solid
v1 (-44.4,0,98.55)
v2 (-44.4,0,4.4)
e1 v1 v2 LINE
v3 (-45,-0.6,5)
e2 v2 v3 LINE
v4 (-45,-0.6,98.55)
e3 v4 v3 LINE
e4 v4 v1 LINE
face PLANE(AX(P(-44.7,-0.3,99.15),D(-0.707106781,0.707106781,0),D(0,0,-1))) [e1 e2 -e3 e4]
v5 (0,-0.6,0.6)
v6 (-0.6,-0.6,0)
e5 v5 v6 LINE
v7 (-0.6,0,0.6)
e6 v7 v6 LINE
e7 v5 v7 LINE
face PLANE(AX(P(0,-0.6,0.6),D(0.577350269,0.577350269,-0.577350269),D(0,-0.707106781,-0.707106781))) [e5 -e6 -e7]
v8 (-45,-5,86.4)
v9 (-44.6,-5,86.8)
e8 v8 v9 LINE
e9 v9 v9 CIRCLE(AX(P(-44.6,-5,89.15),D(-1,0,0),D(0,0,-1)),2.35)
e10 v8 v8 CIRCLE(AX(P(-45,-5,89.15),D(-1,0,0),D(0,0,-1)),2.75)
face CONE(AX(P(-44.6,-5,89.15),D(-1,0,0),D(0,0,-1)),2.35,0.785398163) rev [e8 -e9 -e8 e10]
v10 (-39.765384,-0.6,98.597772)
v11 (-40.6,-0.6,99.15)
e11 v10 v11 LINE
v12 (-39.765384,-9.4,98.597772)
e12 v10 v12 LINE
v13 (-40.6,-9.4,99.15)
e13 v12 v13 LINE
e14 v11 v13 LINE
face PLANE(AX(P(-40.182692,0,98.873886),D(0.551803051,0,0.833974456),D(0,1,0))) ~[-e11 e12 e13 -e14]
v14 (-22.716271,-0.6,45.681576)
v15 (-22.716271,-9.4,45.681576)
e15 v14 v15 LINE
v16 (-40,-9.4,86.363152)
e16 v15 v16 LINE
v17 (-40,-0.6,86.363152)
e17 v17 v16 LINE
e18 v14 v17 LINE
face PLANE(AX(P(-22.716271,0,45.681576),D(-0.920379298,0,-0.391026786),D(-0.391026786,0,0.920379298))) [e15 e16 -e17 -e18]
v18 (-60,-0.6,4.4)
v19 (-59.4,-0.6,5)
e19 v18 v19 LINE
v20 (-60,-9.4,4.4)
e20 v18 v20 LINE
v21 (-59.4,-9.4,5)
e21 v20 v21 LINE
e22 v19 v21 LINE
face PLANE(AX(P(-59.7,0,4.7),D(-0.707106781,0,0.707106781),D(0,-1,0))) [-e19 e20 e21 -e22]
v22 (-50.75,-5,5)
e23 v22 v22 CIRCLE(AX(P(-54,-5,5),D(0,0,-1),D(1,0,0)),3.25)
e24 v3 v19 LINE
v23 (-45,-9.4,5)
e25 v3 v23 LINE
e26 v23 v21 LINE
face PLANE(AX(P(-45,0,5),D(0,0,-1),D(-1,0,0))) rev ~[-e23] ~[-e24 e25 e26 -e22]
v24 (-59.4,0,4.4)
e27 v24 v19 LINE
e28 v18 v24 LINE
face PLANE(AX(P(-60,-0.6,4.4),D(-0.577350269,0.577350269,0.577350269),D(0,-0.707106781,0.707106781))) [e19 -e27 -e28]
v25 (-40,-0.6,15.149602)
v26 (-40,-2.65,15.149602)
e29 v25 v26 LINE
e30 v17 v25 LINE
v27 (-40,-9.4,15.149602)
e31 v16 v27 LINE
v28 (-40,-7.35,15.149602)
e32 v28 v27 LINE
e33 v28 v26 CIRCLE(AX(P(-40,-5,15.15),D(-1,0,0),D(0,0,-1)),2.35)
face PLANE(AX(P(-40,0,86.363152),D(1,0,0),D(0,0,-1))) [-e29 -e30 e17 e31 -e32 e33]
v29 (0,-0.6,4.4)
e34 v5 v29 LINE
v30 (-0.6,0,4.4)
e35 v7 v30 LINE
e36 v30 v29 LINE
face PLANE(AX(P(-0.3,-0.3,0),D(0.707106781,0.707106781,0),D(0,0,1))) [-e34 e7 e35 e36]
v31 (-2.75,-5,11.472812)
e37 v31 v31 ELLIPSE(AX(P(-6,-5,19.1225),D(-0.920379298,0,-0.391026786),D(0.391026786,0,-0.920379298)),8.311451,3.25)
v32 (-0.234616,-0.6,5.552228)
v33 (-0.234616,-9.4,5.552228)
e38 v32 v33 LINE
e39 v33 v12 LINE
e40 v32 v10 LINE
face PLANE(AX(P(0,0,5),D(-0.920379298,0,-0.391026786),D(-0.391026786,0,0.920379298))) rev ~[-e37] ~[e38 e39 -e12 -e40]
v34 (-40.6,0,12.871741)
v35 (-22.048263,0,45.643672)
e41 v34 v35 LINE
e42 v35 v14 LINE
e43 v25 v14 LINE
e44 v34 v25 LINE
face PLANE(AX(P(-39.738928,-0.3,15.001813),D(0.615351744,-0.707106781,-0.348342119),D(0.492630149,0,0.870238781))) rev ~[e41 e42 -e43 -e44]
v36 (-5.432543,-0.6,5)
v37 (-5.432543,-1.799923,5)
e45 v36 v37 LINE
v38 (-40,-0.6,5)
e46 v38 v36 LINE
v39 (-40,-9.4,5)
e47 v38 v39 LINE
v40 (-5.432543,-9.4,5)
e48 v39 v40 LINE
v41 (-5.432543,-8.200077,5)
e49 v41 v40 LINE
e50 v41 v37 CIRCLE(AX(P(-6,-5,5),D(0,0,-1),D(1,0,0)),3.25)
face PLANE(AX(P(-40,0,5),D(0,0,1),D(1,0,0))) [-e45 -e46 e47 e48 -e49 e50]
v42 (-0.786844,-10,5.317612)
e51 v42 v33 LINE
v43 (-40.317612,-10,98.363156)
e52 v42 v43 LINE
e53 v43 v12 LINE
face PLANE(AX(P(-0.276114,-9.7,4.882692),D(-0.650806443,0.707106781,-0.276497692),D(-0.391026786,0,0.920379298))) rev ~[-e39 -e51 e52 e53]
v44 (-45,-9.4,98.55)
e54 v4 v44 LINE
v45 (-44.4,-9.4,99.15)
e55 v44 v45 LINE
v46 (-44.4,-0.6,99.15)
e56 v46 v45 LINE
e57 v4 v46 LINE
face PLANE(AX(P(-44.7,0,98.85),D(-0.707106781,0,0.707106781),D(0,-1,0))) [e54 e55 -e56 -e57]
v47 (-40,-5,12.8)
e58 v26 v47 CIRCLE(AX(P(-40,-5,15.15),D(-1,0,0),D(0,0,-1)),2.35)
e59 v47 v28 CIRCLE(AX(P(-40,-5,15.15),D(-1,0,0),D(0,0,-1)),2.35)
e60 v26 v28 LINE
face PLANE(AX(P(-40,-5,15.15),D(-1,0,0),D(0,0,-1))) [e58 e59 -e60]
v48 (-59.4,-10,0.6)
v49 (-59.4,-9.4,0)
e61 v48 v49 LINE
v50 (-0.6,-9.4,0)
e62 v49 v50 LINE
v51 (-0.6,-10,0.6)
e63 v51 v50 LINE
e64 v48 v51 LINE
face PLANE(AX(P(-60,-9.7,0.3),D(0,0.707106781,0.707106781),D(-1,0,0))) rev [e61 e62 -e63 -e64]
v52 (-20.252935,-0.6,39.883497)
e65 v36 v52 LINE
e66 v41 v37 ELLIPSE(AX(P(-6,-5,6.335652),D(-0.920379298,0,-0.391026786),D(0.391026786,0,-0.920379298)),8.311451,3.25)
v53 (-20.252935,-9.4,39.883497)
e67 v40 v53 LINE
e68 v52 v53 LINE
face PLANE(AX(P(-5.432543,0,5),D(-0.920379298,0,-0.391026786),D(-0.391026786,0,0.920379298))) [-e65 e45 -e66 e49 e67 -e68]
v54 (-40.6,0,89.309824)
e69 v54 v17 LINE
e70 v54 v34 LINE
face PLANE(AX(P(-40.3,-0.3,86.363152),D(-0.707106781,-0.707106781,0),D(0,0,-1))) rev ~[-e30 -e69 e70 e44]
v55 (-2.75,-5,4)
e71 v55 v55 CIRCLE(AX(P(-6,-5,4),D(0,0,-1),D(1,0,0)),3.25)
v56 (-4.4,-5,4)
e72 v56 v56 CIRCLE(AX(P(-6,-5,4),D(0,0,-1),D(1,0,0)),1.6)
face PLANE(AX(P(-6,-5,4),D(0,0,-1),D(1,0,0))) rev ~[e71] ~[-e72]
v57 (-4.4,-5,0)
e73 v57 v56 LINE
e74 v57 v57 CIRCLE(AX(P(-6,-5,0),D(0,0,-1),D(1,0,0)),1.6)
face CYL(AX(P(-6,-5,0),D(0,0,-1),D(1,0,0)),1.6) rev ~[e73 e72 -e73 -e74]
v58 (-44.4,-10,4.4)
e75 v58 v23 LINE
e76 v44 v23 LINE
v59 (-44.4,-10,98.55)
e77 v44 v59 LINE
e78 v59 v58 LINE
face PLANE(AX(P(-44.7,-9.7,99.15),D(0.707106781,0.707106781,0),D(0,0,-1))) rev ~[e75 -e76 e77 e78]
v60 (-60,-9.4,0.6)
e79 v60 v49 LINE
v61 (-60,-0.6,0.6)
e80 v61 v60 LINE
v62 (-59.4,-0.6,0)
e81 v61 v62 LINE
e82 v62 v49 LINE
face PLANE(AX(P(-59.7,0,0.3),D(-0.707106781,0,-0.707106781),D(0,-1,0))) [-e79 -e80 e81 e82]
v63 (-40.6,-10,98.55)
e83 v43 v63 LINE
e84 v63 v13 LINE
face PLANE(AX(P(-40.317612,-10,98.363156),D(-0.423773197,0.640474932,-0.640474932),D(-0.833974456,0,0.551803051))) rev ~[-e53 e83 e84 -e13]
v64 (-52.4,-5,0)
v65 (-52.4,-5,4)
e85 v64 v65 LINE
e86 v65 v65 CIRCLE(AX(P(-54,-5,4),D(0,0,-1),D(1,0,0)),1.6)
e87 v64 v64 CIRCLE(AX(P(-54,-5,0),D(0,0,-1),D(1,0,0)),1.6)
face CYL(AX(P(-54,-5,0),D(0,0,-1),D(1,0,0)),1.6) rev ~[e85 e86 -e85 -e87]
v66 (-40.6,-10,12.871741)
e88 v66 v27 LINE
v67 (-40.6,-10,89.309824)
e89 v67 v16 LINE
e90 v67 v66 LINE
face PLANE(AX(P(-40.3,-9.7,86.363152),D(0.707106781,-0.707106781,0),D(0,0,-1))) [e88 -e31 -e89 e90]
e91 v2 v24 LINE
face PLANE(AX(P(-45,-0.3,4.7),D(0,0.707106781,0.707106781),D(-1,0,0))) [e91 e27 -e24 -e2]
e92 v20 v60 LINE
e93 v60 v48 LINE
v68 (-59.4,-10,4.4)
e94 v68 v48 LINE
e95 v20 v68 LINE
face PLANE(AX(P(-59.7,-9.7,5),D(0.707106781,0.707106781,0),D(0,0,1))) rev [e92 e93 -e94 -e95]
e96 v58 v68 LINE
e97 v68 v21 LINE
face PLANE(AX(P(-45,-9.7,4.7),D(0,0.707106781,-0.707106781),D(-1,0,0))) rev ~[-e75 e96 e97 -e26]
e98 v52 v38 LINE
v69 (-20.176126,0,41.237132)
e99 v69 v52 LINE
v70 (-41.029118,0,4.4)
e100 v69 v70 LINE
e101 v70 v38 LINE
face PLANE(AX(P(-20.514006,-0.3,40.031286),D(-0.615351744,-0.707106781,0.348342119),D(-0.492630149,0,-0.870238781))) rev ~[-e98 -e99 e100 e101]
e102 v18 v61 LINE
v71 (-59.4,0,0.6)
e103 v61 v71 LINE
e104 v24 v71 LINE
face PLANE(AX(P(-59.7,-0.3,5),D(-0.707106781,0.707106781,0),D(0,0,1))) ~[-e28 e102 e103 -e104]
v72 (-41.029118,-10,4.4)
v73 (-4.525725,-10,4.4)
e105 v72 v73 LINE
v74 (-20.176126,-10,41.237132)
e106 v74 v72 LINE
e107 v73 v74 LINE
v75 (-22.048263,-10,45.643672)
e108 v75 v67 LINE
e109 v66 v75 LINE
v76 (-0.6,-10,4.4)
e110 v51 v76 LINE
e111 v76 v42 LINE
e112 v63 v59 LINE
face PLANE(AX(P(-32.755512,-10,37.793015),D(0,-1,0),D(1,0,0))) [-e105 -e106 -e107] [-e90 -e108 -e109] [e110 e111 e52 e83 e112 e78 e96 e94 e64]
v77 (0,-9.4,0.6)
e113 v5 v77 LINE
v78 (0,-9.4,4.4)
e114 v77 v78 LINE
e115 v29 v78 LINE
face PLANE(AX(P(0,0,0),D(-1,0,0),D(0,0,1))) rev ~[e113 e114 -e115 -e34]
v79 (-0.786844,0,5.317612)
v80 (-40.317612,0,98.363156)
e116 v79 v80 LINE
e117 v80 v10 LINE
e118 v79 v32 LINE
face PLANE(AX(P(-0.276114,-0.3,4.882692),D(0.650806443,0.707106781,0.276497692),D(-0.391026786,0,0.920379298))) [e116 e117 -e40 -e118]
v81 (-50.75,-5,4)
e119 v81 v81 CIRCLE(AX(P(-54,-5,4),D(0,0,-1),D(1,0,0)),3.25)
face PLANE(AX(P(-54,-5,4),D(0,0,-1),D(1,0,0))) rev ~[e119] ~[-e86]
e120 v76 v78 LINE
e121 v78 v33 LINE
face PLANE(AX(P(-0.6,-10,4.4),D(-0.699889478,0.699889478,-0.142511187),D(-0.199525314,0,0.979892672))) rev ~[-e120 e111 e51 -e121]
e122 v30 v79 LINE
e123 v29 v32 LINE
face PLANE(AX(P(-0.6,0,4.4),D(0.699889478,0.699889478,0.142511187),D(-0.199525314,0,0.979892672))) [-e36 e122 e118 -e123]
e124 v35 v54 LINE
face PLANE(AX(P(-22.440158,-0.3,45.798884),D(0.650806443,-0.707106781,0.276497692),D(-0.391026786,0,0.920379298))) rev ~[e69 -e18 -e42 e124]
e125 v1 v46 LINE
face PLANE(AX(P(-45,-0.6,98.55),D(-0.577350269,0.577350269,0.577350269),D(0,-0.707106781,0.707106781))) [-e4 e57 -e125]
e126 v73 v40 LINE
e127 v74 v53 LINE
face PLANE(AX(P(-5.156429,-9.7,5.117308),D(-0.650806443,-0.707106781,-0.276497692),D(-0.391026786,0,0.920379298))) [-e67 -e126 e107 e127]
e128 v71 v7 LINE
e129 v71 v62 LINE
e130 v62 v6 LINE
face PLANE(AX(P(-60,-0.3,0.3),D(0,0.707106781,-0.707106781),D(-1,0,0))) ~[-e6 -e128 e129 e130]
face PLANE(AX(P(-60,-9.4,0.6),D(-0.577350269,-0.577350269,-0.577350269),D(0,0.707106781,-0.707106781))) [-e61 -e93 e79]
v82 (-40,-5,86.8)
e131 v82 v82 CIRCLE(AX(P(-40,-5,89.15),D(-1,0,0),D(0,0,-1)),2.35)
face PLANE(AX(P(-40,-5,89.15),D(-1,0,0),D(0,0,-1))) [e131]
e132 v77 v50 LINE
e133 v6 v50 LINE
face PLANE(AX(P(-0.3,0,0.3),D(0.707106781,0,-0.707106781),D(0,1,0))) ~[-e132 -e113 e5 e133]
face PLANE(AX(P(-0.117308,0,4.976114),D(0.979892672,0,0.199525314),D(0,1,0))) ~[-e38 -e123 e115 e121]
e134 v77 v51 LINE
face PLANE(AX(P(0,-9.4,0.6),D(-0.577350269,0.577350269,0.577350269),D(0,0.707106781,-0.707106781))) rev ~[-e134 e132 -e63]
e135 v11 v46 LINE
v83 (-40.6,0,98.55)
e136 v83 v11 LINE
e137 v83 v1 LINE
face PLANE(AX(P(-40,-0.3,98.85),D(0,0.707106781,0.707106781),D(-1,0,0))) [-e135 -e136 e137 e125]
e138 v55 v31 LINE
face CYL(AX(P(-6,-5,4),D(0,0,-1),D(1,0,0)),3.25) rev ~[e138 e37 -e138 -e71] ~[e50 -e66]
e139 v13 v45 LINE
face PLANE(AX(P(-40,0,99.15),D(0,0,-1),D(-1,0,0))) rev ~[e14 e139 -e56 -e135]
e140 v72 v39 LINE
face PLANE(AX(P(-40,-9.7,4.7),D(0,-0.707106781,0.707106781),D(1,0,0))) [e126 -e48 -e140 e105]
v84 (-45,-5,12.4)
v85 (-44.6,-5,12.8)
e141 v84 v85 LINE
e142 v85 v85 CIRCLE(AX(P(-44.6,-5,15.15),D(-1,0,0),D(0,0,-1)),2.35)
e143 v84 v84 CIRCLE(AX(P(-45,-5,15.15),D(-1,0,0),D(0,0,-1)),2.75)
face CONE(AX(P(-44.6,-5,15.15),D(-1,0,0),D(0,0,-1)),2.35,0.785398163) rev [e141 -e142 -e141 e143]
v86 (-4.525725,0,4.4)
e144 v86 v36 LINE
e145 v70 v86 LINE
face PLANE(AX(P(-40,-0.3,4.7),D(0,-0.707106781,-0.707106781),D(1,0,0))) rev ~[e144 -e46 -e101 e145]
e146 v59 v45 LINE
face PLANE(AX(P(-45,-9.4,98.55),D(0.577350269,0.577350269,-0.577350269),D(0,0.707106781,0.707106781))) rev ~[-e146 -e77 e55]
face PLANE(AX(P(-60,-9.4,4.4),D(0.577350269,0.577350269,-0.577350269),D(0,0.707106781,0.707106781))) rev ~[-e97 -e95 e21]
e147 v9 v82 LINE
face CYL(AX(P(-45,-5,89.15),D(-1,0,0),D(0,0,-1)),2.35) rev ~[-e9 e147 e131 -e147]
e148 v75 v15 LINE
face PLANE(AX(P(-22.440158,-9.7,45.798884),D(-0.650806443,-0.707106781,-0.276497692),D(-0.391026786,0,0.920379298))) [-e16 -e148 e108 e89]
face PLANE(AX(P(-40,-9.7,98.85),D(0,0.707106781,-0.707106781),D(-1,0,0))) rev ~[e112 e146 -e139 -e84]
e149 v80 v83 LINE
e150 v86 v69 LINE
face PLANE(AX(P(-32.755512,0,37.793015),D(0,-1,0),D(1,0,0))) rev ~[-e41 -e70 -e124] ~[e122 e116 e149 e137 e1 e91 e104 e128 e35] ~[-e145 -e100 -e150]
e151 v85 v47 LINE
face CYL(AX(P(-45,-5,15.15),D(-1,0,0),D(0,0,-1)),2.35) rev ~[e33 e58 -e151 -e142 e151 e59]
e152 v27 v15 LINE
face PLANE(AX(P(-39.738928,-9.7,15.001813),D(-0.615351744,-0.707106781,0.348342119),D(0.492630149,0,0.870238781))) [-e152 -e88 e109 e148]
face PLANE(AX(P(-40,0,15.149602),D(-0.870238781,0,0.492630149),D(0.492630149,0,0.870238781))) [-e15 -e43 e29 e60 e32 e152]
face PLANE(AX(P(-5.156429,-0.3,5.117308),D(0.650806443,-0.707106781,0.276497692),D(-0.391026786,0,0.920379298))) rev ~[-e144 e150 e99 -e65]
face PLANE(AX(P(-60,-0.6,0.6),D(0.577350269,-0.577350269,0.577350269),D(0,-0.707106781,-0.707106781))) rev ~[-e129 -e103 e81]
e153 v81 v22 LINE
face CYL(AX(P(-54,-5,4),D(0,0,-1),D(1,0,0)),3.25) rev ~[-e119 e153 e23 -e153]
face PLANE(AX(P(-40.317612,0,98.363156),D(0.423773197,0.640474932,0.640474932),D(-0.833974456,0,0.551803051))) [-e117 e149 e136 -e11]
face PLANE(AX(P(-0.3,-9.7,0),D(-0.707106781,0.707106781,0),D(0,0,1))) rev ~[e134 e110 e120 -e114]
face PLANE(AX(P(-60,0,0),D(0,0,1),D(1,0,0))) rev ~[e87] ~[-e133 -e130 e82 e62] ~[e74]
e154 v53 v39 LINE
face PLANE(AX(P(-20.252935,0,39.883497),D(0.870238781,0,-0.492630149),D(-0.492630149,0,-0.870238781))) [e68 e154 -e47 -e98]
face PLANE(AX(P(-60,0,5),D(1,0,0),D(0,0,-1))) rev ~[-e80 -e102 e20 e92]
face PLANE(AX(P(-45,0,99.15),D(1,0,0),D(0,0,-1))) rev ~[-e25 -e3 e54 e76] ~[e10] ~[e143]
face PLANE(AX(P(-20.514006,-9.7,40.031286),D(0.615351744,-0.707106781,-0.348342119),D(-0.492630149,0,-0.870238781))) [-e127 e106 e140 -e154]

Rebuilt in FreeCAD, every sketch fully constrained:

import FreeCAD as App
import Part
import Sketcher

V = App.Vector


def edges_at(feature, points):
    """Names of the edges that pass closest to the given points."""
    edges = feature.Shape.Edges
    near = lambda p: min(range(len(edges)), key=lambda i: edges[i].distToShape(Part.Vertex(*p))[0])
    return sorted({f"Edge{near(p) + 1}" for p in points})

doc = App.newDocument("Part")
body = doc.addObject("PartDesign::Body", "Body")

sketch1 = body.newObject("Sketcher::SketchObject", "Sketch")
sketch1.AttachmentSupport = (doc.getObject("XZ_Plane"), [""])
sketch1.MapMode = "FlatFace"
sketch1.addGeometry([
    Part.LineSegment(V(-60, 0, 0), V(0, 0, 0)),
    Part.LineSegment(V(0, 0, 0), V(0, 5, 0)),
    Part.LineSegment(V(0, 5, 0), V(-40, 99, 0)),
    Part.LineSegment(V(-40, 99, 0), V(-45, 99, 0)),
    Part.LineSegment(V(-45, 99, 0), V(-45, 5, 0)),
    Part.LineSegment(V(-45, 5, 0), V(-60, 5, 0)),
    Part.LineSegment(V(-60, 5, 0), V(-60, 0, 0)),
    Part.LineSegment(V(-5, 5, 0), V(-40, 5, 0)),
    Part.LineSegment(V(-40, 5, 0), V(-20, 40, 0)),
    Part.LineSegment(V(-20, 40, 0), V(-5, 5, 0)),
    Part.LineSegment(V(-23, 46, 0), V(-40, 15, 0)),
    Part.LineSegment(V(-40, 15, 0), V(-40, 86, 0)),
    Part.LineSegment(V(-40, 86, 0), V(-23, 46, 0)),
], False)
sketch1.addConstraint([
    Sketcher.Constraint("Coincident", 0, 2, 1, 1),
    Sketcher.Constraint("Coincident", 1, 2, 2, 1),
    Sketcher.Constraint("Coincident", 2, 2, 3, 1),
    Sketcher.Constraint("Coincident", 3, 2, 4, 1),
    Sketcher.Constraint("Coincident", 4, 2, 5, 1),
    Sketcher.Constraint("Coincident", 5, 2, 6, 1),
    Sketcher.Constraint("Coincident", 6, 2, 0, 1),
    Sketcher.Constraint("Coincident", 7, 2, 8, 1),
    Sketcher.Constraint("Coincident", 8, 2, 9, 1),
    Sketcher.Constraint("Coincident", 9, 2, 7, 1),
    Sketcher.Constraint("Coincident", 10, 2, 11, 1),
    Sketcher.Constraint("Coincident", 11, 2, 12, 1),
    Sketcher.Constraint("Coincident", 12, 2, 10, 1),
    Sketcher.Constraint("Horizontal", 0),
    Sketcher.Constraint("Vertical", 1),
    Sketcher.Constraint("Horizontal", 3),
    Sketcher.Constraint("Vertical", 4),
    Sketcher.Constraint("Horizontal", 5),
    Sketcher.Constraint("Vertical", 6),
    Sketcher.Constraint("Horizontal", 7),
    Sketcher.Constraint("Vertical", 11),
    Sketcher.Constraint("Coincident", 0, 2, -1, 1),
    Sketcher.Constraint("Parallel", 2, 9),
    Sketcher.Constraint("Parallel", 8, 10),
    Sketcher.Constraint("Parallel", 9, 12),
    Sketcher.Constraint("Horizontal", 1, 2, 4, 2),
    Sketcher.Constraint("Horizontal", 5, 2, 7, 2),
    Sketcher.Constraint("Vertical", 2, 2, 7, 2),
    Sketcher.Constraint("Vertical", 7, 2, 10, 2),
    Sketcher.Constraint("Equal", 3, 1),
    Sketcher.Constraint("DistanceX", 0, 1, 0, 2, 60.0),
    Sketcher.Constraint("DistanceX", 3, 2, 3, 1, 5.0),
    Sketcher.Constraint("DistanceX", 5, 2, 5, 1, 15.0),
    Sketcher.Constraint("DistanceY", 4, 2, 4, 1, 94.15),
    Sketcher.Constraint("DistanceY", 11, 1, 11, 2, 71.21355),
    Sketcher.Constraint("Distance", 8, 40.084972),
    Sketcher.Constraint("Distance", 9, 37.901218),
    Sketcher.Constraint("DistanceY", 8, 2, 12, 2, 5.798079),
])
pad1 = body.newObject("PartDesign::Pad", "Pad")
pad1.Profile = sketch1
pad1.Length = 10

sketch2 = body.newObject("Sketcher::SketchObject", "Sketch001")
sketch2.AttachmentSupport = (doc.getObject("YZ_Plane"), [""])
sketch2.MapMode = "FlatFace"
sketch2.AttachmentOffset = App.Placement(V(0, 0, -45), App.Rotation())
sketch2.addGeometry([
    Part.Circle(V(-5, 89.2, 0), V(0, 0, 1), 2.4),
    Part.Circle(V(-5, 15.2, 0), V(0, 0, 1), 2.4),
], False)
sketch2.addConstraint([
    Sketcher.Constraint("Equal", 0, 1),
    Sketcher.Constraint("Vertical", 0, 3, 1, 3),
    Sketcher.Constraint("Diameter", 0, 4.7),
    Sketcher.Constraint("DistanceX", 0, 3, -1, 1, 5.0),
    Sketcher.Constraint("DistanceY", 1, 3, 0, 3, 74.0),
    Sketcher.Constraint("DistanceY", -1, 1, 0, 3, 89.15),
])
pocket1 = body.newObject("PartDesign::Pocket", "Pocket")
pocket1.Profile = sketch2
pocket1.Length = 5
pocket1.Reversed = True

sketch3 = body.newObject("Sketcher::SketchObject", "Sketch002")
sketch3.AttachmentSupport = (doc.getObject("XY_Plane"), [""])
sketch3.MapMode = "FlatFace"
sketch3.addGeometry([
    Part.Circle(V(-54, -5, 0), V(0, 0, 1), 1.6),
    Part.Circle(V(-6, -5, 0), V(0, 0, 1), 1.6),
], False)
sketch3.addConstraint([
    Sketcher.Constraint("Equal", 0, 1),
    Sketcher.Constraint("Horizontal", 0, 3, 1, 3),
    Sketcher.Constraint("Diameter", 0, 3.2),
    Sketcher.Constraint("DistanceX", 0, 3, -1, 1, 54.0),
    Sketcher.Constraint("DistanceY", 0, 3, -1, 1, 5.0),
    Sketcher.Constraint("DistanceX", 1, 3, -1, 1, 6.0),
])
pocket2 = body.newObject("PartDesign::Pocket", "Pocket001")
pocket2.Profile = sketch3
pocket2.Type = "ThroughAll"
pocket2.Reversed = True

sketch4 = body.newObject("Sketcher::SketchObject", "Sketch003")
sketch4.AttachmentSupport = (doc.getObject("XY_Plane"), [""])
sketch4.MapMode = "FlatFace"
sketch4.AttachmentOffset = App.Placement(V(0, 0, 4), App.Rotation())
sketch4.addGeometry([
    Part.Circle(V(-54, -5, 0), V(0, 0, 1), 3.2),
    Part.Circle(V(-6, -5, 0), V(0, 0, 1), 3.2),
], False)
sketch4.addConstraint([
    Sketcher.Constraint("Equal", 0, 1),
    Sketcher.Constraint("Horizontal", 0, 3, 1, 3),
    Sketcher.Constraint("Diameter", 0, 6.5),
    Sketcher.Constraint("DistanceX", 0, 3, -1, 1, 54.0),
    Sketcher.Constraint("DistanceY", 0, 3, -1, 1, 5.0),
    Sketcher.Constraint("DistanceX", 1, 3, -1, 1, 6.0),
])
pocket3 = body.newObject("PartDesign::Pocket", "Pocket002")
pocket3.Profile = sketch4
pocket3.Type = "ThroughAll"
pocket3.Reversed = True
doc.recompute()

chamfer = body.newObject("PartDesign::Chamfer", "Chamfer")
chamfer.Base = (pocket3, edges_at(pocket3, [
    (-30, 0, 0),
    (0, 0, 2.5),
    (-20, 0, 52.075),
    (-42.5, 0, 99.15),
    (-45, 0, 52.075),
    (-52.5, 0, 5),
    (-60, 0, 2.5),
    (-31.358, 0, 30.416),
    (-31.358, 0, 66.022),
    (-40, 0, 50.756),
    (-22.716, 0, 5),
    (-12.843, 0, 22.442),
    (-30.126, 0, 22.442),
    (-30, -10, 0),
    (0, -10, 2.5),
    (-20, -10, 52.075),
    (-42.5, -10, 99.15),
    (-45, -10, 52.075),
    (-52.5, -10, 5),
    (-60, -10, 2.5),
    (-31.358, -10, 30.416),
    (-31.358, -10, 66.022),
    (-40, -10, 50.756),
    (-22.716, -10, 5),
    (-12.843, -10, 22.442),
    (-30.126, -10, 22.442),
    (-40, -5, 99.15),
    (-45, -5, 99.15),
    (-60, -5, 5),
    (-60, -5, 0),
    (0, -5, 0),
    (0, -5, 5),
]))
chamfer.Size = 0.6
doc.recompute()

chamfer2 = body.newObject("PartDesign::Chamfer", "Chamfer001")
chamfer2.Base = (chamfer, edges_at(chamfer, [(-45, -5, 91.5), (-45, -5, 17.5)]))
chamfer2.Size = 0.4

doc.recompute()
